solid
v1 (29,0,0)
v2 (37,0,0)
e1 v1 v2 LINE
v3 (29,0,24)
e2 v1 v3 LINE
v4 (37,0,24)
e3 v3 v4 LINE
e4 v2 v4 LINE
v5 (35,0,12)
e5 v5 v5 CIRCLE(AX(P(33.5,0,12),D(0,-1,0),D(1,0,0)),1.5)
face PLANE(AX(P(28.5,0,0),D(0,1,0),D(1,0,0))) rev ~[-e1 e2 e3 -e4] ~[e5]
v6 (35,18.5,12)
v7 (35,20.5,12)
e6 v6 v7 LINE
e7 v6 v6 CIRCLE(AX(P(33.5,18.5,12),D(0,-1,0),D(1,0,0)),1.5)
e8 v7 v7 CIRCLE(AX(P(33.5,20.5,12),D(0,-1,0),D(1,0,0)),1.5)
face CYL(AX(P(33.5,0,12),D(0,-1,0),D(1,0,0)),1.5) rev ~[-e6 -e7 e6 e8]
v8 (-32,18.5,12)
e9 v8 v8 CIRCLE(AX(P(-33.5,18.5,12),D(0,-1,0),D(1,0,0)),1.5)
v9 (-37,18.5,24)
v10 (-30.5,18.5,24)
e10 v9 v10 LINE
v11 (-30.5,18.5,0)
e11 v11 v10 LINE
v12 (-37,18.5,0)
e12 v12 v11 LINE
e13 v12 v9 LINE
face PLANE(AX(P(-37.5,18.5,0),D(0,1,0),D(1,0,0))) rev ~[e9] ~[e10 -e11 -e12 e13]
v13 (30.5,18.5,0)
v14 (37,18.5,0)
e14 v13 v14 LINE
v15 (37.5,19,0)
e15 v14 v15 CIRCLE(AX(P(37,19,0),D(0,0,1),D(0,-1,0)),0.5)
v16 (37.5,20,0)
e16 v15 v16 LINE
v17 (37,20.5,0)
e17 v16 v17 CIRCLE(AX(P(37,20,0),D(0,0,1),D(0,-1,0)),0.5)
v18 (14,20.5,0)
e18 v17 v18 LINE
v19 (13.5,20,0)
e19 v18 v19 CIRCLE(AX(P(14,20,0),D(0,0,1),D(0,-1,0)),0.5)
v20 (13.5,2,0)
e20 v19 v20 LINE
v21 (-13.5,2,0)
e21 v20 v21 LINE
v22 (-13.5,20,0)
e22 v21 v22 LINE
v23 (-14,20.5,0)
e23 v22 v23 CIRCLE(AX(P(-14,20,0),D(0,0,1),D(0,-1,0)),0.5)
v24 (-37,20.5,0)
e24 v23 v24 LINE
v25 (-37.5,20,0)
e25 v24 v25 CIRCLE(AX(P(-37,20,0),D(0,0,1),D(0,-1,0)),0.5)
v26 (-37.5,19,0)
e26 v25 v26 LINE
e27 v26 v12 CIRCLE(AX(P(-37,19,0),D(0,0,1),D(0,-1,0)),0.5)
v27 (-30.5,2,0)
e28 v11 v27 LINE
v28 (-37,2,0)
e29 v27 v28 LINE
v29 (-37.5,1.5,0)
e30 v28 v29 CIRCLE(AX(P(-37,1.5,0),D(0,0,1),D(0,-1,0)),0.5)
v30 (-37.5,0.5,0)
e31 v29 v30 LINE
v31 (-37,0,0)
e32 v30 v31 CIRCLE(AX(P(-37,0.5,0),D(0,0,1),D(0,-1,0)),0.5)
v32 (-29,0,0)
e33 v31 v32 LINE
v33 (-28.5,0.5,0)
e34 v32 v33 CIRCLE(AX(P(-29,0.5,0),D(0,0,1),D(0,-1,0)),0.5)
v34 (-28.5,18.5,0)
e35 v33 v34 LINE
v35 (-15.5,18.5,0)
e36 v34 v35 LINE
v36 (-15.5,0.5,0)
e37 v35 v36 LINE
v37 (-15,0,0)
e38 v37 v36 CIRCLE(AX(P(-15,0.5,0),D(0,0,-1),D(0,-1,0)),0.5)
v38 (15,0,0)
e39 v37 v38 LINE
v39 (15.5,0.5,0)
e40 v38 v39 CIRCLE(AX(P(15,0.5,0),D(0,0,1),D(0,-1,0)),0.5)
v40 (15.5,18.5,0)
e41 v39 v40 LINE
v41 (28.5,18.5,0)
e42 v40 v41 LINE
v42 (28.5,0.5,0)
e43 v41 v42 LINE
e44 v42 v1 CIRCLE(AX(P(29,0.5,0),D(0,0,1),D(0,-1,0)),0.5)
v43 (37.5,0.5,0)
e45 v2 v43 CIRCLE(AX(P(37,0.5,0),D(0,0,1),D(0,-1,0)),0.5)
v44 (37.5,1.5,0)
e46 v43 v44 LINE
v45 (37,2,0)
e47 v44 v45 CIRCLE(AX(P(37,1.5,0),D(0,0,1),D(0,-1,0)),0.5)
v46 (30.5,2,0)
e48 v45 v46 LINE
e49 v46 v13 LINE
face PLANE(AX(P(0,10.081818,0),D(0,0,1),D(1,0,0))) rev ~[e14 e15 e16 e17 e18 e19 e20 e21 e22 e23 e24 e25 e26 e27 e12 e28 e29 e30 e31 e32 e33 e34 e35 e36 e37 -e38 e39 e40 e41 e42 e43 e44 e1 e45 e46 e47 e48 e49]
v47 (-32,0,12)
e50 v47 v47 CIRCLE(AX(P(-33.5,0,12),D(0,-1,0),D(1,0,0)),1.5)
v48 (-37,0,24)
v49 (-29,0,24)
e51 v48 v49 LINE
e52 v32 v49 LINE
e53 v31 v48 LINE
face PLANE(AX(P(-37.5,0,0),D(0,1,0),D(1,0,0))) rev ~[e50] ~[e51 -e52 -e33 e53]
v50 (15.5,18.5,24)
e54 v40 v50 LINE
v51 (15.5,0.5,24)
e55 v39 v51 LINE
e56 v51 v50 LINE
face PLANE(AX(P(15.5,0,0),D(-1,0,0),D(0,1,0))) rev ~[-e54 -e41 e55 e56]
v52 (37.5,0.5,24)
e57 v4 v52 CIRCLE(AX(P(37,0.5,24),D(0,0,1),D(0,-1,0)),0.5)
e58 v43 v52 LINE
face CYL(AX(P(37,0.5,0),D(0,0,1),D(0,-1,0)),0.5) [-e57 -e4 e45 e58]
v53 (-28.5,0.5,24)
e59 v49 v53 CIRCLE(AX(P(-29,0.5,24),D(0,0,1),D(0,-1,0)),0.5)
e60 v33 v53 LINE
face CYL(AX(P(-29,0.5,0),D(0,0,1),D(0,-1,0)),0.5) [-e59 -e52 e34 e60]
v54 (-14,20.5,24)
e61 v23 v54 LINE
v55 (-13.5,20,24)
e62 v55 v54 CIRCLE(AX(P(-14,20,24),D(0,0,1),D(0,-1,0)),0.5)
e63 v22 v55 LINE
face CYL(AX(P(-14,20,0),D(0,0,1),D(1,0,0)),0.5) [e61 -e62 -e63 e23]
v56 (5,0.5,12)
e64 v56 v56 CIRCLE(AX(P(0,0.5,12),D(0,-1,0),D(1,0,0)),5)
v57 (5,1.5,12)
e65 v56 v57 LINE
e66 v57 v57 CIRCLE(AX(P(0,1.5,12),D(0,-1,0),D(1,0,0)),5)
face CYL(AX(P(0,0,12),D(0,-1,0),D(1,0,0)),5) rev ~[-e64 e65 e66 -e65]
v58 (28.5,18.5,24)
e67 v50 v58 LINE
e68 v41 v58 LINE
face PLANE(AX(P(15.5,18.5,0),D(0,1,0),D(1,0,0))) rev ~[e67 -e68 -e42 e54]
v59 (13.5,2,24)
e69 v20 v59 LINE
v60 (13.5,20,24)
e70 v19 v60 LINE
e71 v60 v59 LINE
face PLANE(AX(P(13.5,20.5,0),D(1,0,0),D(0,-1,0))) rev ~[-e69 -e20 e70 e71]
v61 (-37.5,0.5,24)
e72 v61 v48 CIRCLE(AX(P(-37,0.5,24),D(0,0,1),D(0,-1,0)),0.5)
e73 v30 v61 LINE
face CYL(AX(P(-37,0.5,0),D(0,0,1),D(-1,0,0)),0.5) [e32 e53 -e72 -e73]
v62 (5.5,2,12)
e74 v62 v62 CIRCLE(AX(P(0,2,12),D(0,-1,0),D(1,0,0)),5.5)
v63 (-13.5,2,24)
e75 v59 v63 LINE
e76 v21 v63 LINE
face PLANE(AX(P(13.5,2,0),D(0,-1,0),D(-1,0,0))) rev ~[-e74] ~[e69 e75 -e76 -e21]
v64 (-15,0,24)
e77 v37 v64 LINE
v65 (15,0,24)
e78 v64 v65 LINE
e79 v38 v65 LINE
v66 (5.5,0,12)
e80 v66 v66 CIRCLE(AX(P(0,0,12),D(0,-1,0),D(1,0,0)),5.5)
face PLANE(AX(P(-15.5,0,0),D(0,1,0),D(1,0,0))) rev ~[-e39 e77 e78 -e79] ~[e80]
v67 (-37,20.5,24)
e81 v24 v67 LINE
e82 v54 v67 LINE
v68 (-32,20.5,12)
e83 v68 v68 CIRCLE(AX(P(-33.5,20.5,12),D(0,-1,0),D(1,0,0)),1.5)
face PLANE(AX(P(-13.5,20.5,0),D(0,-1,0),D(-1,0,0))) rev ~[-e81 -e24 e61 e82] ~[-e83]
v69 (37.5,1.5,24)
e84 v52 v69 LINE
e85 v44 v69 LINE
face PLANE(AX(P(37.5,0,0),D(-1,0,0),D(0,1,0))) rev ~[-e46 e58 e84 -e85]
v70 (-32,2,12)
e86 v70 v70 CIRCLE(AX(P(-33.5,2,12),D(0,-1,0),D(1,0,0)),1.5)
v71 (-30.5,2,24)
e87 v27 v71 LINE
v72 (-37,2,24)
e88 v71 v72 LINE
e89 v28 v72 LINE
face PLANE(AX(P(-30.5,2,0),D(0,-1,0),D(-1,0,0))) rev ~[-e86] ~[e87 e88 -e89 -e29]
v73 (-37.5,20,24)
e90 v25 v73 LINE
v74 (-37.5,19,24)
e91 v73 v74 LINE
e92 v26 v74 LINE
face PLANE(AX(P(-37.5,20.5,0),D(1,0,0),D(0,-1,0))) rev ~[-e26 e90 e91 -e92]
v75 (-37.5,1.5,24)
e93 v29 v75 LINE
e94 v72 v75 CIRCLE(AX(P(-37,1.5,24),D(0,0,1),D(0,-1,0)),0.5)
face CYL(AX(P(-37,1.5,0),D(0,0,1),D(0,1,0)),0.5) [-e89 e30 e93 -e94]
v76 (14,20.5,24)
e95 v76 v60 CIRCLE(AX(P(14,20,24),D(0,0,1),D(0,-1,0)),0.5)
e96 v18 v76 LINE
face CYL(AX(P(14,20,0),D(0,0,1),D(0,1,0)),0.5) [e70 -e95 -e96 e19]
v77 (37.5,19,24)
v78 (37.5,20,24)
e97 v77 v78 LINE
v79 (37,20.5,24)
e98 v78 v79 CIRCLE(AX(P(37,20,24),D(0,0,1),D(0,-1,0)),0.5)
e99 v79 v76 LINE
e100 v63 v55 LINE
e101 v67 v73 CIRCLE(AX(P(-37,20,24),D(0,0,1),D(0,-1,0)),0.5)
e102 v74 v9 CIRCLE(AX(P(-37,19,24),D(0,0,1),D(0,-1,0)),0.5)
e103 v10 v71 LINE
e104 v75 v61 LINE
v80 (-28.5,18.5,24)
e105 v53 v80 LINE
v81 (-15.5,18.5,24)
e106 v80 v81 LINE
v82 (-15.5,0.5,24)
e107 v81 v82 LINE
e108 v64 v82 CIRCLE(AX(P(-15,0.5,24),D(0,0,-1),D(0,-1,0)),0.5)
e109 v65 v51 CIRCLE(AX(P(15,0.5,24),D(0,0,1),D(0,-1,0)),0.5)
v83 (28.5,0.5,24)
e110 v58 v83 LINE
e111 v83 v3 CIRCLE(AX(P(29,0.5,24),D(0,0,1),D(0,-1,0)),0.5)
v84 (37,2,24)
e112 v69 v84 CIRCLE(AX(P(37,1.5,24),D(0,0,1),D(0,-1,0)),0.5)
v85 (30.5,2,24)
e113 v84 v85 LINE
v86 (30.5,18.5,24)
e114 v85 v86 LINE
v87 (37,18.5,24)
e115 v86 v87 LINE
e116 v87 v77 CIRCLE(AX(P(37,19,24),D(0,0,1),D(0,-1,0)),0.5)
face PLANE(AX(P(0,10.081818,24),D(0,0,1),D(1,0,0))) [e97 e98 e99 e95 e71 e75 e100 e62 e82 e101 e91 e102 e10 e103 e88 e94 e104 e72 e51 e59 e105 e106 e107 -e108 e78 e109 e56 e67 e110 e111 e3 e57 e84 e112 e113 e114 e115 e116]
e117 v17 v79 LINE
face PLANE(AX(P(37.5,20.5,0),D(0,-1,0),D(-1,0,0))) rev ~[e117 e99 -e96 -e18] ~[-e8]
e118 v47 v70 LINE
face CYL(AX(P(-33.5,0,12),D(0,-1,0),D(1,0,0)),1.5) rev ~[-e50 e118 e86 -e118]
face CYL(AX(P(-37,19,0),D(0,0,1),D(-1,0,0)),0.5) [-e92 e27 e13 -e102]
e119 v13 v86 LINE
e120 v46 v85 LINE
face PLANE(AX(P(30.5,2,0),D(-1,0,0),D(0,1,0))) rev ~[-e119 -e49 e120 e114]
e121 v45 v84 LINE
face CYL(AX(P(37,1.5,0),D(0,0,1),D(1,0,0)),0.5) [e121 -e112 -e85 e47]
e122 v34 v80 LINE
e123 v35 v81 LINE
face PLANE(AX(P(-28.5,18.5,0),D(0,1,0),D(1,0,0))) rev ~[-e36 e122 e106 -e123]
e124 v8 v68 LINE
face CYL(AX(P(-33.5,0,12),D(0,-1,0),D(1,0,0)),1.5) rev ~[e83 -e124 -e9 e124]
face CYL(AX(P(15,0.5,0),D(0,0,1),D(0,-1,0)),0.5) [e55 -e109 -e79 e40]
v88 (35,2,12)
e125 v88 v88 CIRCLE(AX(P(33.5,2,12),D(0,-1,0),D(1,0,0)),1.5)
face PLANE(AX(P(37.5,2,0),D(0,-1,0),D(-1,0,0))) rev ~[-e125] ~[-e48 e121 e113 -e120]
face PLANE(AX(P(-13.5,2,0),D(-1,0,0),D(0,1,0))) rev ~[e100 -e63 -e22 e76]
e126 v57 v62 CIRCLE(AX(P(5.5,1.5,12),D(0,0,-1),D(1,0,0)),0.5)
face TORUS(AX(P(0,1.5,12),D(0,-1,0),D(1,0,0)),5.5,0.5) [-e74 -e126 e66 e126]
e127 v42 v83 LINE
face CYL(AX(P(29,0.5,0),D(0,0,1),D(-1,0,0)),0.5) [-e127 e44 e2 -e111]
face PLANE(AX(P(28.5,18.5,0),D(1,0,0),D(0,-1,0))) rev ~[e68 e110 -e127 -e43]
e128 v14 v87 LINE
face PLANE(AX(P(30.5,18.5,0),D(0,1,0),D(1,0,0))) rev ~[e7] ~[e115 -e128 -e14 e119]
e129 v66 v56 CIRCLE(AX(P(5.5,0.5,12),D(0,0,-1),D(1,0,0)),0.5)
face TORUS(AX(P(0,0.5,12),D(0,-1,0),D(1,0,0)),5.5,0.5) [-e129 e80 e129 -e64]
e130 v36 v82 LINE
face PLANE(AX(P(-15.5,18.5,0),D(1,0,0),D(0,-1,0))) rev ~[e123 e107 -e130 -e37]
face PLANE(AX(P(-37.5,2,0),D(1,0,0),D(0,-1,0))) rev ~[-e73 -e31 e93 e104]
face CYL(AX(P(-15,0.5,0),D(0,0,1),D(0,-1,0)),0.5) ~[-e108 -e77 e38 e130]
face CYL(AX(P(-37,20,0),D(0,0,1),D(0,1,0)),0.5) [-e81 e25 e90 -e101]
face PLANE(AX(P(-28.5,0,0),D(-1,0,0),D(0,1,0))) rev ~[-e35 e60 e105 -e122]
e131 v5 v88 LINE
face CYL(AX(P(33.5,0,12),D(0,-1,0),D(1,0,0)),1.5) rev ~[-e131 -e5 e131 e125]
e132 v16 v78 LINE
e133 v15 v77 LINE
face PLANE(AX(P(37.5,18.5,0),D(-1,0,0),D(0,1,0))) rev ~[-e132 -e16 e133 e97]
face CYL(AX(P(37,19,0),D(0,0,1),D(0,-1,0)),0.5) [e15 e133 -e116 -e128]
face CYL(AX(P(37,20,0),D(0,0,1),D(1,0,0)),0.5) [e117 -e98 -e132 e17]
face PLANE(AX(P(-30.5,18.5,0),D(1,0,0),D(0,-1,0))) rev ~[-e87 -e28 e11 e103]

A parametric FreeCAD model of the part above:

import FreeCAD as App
import Part
import Sketcher
Q = App.Units.Quantity


def edges_at(feature, points):
    """Names of the edges that pass closest to the given points."""
    edges = feature.Shape.Edges
    near = lambda p: min(range(len(edges)), key=lambda i: edges[i].distToShape(Part.Vertex(*p))[0])
    return sorted({f"Edge{near(p) + 1}" for p in points})


def add_polygon(sketch, points):
    """Adds a closed chain of lines whose ends are joined by coincident constraints."""
    first, n = sketch.GeometryCount, len(points)
    for a, b in zip(points, points[1:] + points[:1]):
        sketch.addGeometry(Part.LineSegment(App.Vector(*a, 0), App.Vector(*b, 0)), False)
    for i in range(n):
        sketch.addConstraint(Sketcher.Constraint("Coincident", first + i, 2, first + (i + 1) % n, 1))

doc = App.newDocument("Part")
params = doc.addObject("Spreadsheet::Sheet", "Params")
for row, (alias, value) in enumerate([
    ("sketch1_width", "31 mm"),
    ("sketch1_width2", "13 mm"),
    ("sketch1_width3", "9 mm"),
    ("sketch1_width4", "7 mm"),
    ("sketch1_width5", "24 mm"),
    ("pad1_length", "24 mm"),
    ("sketch2_diameter", "3 mm"),
    ("sketch2_diameter2", "10 mm"),
    ("pocket1_length", "25 mm"),
    ("fillet_radius", "0.5 mm"),
], start=1):
    params.set(f"A{row}", alias)
    params.set(f"B{row}", "=" + value)
    params.setAlias(f"B{row}", alias)

body = doc.addObject("PartDesign::Body", "Body")

# Sketch on XY plane
sketch1 = body.newObject("Sketcher::SketchObject", "Sketch")
sketch1.AttachmentSupport = (doc.getObject("XY_Plane"), [""])
sketch1.MapMode = "FlatFace"
add_polygon(sketch1, [(-15.5, 0), (15.5, 0), (15.5, 18.5), (28.5, 18.5), (28.5, 0), (37.5, 0), (37.5, 2), (30.5, 2), (30.5, 18.5), (37.5, 18.5), (37.5, 20.5), (13.5, 20.5), (13.5, 2), (-13.5, 2), (-13.5, 20.5), (-37.5, 20.5), (-37.5, 18.5), (-30.5, 18.5), (-30.5, 2), (-37.5, 2), (-37.5, 0), (-28.5, 0), (-28.5, 18.5), (-15.5, 18.5)])  # lines 0-23
sketch1.addConstraint(Sketcher.Constraint("Horizontal", 0))
sketch1.addConstraint(Sketcher.Constraint("Vertical", 1))
sketch1.addConstraint(Sketcher.Constraint("Horizontal", 2))
sketch1.addConstraint(Sketcher.Constraint("Vertical", 3))
sketch1.addConstraint(Sketcher.Constraint("Horizontal", 4))
sketch1.addConstraint(Sketcher.Constraint("Vertical", 5))
sketch1.addConstraint(Sketcher.Constraint("Horizontal", 6))
sketch1.addConstraint(Sketcher.Constraint("Vertical", 7))
sketch1.addConstraint(Sketcher.Constraint("Horizontal", 8))
sketch1.addConstraint(Sketcher.Constraint("Vertical", 9))
sketch1.addConstraint(Sketcher.Constraint("Horizontal", 10))
sketch1.addConstraint(Sketcher.Constraint("Vertical", 11))
sketch1.addConstraint(Sketcher.Constraint("Horizontal", 12))
sketch1.addConstraint(Sketcher.Constraint("Vertical", 13))
sketch1.addConstraint(Sketcher.Constraint("Horizontal", 14))
sketch1.addConstraint(Sketcher.Constraint("Vertical", 15))
sketch1.addConstraint(Sketcher.Constraint("Horizontal", 16))
sketch1.addConstraint(Sketcher.Constraint("Vertical", 17))
sketch1.addConstraint(Sketcher.Constraint("Horizontal", 18))
sketch1.addConstraint(Sketcher.Constraint("Vertical", 19))
sketch1.addConstraint(Sketcher.Constraint("Horizontal", 20))
sketch1.addConstraint(Sketcher.Constraint("Vertical", 21))
sketch1.addConstraint(Sketcher.Constraint("Horizontal", 22))
sketch1.addConstraint(Sketcher.Constraint("Vertical", 23))
sketch1.addConstraint(Sketcher.Constraint("Symmetric", 4, 2, 19, 2, -1, 1))
sketch1.addConstraint(Sketcher.Constraint("Symmetric", 0, 2, 23, 2, -1, 1))
sketch1.addConstraint(Sketcher.Constraint("Symmetric", 10, 2, 13, 2, -2))
sketch1.addConstraint(Sketcher.Constraint("Symmetric", 8, 2, 15, 2, -2))
sketch1.addConstraint(Sketcher.Constraint("Symmetric", 6, 2, 17, 2, -2))
sketch1.addConstraint(Sketcher.Constraint("Symmetric", 3, 2, 20, 2, -2))
sketch1.addConstraint(Sketcher.Constraint("Horizontal", 2, 2, 7, 2))
sketch1.addConstraint(Sketcher.Constraint("Horizontal", 6, 2, 11, 2))
sketch1.addConstraint(Sketcher.Constraint("Horizontal", 16, 2, 21, 2))
sketch1.addConstraint(Sketcher.Constraint("Vertical", 5, 2, 8, 2))
sketch1.addConstraint(Sketcher.Constraint("Equal", 5, 9))
sketch1.addConstraint(Sketcher.Constraint("DistanceX", 0, 1, 0, 2, Q("31 mm")))
sketch1.addConstraint(Sketcher.Constraint("DistanceX", 2, 1, 2, 2, Q("13 mm")))
sketch1.addConstraint(Sketcher.Constraint("DistanceX", 4, 1, 4, 2, Q("9 mm")))
sketch1.addConstraint(Sketcher.Constraint("DistanceX", 6, 2, 6, 1, Q("7 mm")))
sketch1.addConstraint(Sketcher.Constraint("DistanceX", 10, 2, 10, 1, Q("24 mm")))
sketch1.addConstraint(Sketcher.Constraint("DistanceY", 5, 1, 5, 2, Q("2 mm")))
sketch1.addConstraint(Sketcher.Constraint("DistanceY", 1, 1, 1, 2, Q("18.5 mm")))
sketch1.setExpression("Constraints[59]", "Params.sketch1_width")
sketch1.setExpression("Constraints[60]", "Params.sketch1_width2")
sketch1.setExpression("Constraints[61]", "Params.sketch1_width3")
sketch1.setExpression("Constraints[62]", "Params.sketch1_width4")
sketch1.setExpression("Constraints[63]", "Params.sketch1_width5")
pad1 = body.newObject("PartDesign::Pad", "Pad")
pad1.Profile = sketch1
pad1.setExpression("Length", "Params.pad1_length")

# Sketch on XZ plane
sketch2 = body.newObject("Sketcher::SketchObject", "Sketch001")
sketch2.AttachmentSupport = (doc.getObject("XZ_Plane"), [""])
sketch2.MapMode = "FlatFace"
sketch2.addGeometry(Part.Circle(App.Vector(-33.5, 12, 0), App.Vector(0, 0, 1), 1.5), False)
sketch2.addGeometry(Part.Circle(App.Vector(0, 12, 0), App.Vector(0, 0, 1), 5), False)
sketch2.addGeometry(Part.Circle(App.Vector(33.5, 12, 0), App.Vector(0, 0, 1), 1.5), False)
sketch2.addConstraint(Sketcher.Constraint("Equal", 0, 2))
sketch2.addConstraint(Sketcher.Constraint("Symmetric", 0, 3, 2, 3, -2))
sketch2.addConstraint(Sketcher.Constraint("PointOnObject", 1, 3, -2))
sketch2.addConstraint(Sketcher.Constraint("Horizontal", 0, 3, 1, 3))
sketch2.addConstraint(Sketcher.Constraint("Diameter", 0, Q("3 mm")))
sketch2.addConstraint(Sketcher.Constraint("Diameter", 1, Q("10 mm")))
sketch2.addConstraint(Sketcher.Constraint("DistanceY", -1, 1, 0, 3, Q("12 mm")))
sketch2.addConstraint(Sketcher.Constraint("DistanceX", 0, 3, 2, 3, Q("67 mm")))
sketch2.setExpression("Constraints[4]", "Params.sketch2_diameter")
sketch2.setExpression("Constraints[5]", "Params.sketch2_diameter2")
pocket1 = body.newObject("PartDesign::Pocket", "Pocket")
pocket1.Profile = sketch2
pocket1.setExpression("Length", "Params.pocket1_length")
doc.recompute()

fillet = body.newObject("PartDesign::Fillet", "Fillet")
fillet.Base = (pocket1, edges_at(pocket1, [
    (-13.5, 20.5, 12),
    (13.5, 20.5, 12),
    (15.5, 0, 12),
    (-28.5, 0, 12),
    (-15.5, 0, 12),
    (28.5, 0, 12),
    (37.5, 20.5, 12),
    (37.5, 18.5, 12),
    (37.5, 2, 12),
    (37.5, 0, 12),
    (-37.5, 20.5, 12),
    (-37.5, 18.5, 12),
    (-37.5, 2, 12),
    (-37.5, 0, 12),
    (-5, 0, 12),
    (-5, 2, 12),
]))
fillet.setExpression("Radius", "Params.fillet_radius")

doc.recompute()
